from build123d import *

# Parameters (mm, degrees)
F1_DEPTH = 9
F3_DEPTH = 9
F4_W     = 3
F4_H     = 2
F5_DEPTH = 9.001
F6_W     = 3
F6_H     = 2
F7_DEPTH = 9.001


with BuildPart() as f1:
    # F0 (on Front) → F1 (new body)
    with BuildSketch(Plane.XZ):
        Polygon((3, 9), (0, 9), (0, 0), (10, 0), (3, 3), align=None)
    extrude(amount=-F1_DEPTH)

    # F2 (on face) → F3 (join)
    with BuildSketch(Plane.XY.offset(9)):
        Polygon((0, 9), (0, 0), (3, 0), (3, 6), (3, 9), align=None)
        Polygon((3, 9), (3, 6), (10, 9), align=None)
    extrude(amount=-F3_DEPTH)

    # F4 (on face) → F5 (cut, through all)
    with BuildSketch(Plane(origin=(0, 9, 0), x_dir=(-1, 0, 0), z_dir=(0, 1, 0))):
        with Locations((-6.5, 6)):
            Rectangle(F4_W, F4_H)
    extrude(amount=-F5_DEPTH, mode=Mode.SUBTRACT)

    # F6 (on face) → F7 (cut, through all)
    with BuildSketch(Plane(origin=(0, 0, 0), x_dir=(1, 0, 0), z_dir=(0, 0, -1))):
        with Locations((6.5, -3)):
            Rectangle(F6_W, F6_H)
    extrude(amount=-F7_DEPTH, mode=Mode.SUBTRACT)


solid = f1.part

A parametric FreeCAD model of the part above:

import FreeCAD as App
import Part
import Sketcher

V = App.Vector
Q = App.Units.Quantity

doc = App.newDocument("Part")
body = doc.addObject("PartDesign::Body", "Body")

# Sketch on XZ plane
sketch1 = body.newObject("Sketcher::SketchObject", "Sketch")
sketch1.AttachmentSupport = (doc.getObject("XZ_Plane"), [""])
sketch1.MapMode = "FlatFace"
sketch1.addGeometry(Part.LineSegment(V(3, 9, 0), V(0, 9, 0)), False)
sketch1.addGeometry(Part.LineSegment(V(0, 9, 0), V(0, 0, 0)), False)
sketch1.addGeometry(Part.LineSegment(V(0, 0, 0), V(10, 0, 0)), False)
sketch1.addGeometry(Part.LineSegment(V(10, 0, 0), V(3, 3, 0)), False)
sketch1.addGeometry(Part.LineSegment(V(3, 3, 0), V(3, 9, 0)), False)
sketch1.addConstraint(Sketcher.Constraint("Coincident", 0, 2, 1, 1))
sketch1.addConstraint(Sketcher.Constraint("Coincident", 1, 2, 2, 1))
sketch1.addConstraint(Sketcher.Constraint("Coincident", 2, 2, 3, 1))
sketch1.addConstraint(Sketcher.Constraint("Coincident", 3, 2, 4, 1))
sketch1.addConstraint(Sketcher.Constraint("Coincident", 4, 2, 0, 1))
sketch1.addConstraint(Sketcher.Constraint("Horizontal", 0))
sketch1.addConstraint(Sketcher.Constraint("Vertical", 1))
sketch1.addConstraint(Sketcher.Constraint("Horizontal", 2))
sketch1.addConstraint(Sketcher.Constraint("Vertical", 4))
sketch1.addConstraint(Sketcher.Constraint("Coincident", 1, 2, -1, 1))
sketch1.addConstraint(Sketcher.Constraint("DistanceX", 0, 2, 0, 1, Q("3 mm")))
sketch1.addConstraint(Sketcher.Constraint("DistanceX", 2, 1, 2, 2, Q("10 mm")))
sketch1.addConstraint(Sketcher.Constraint("DistanceY", 1, 2, 1, 1, Q("9 mm")))
sketch1.addConstraint(Sketcher.Constraint("DistanceY", 4, 1, 4, 2, Q("6 mm")))
pad1 = body.newObject("PartDesign::Pad", "Pad")
pad1.Profile = sketch1
pad1.Length = 9
pad1.Reversed = True

# Sketch on XY plane
sketch2 = body.newObject("Sketcher::SketchObject", "Sketch001")
sketch2.AttachmentSupport = (doc.getObject("XY_Plane"), [""])
sketch2.MapMode = "FlatFace"
sketch2.AttachmentOffset = App.Placement(V(0, 0, 9), App.Rotation())
sketch2.addGeometry(Part.LineSegment(V(0, 9, 0), V(0, 0, 0)), False)
sketch2.addGeometry(Part.LineSegment(V(0, 0, 0), V(3, 0, 0)), False)
sketch2.addGeometry(Part.LineSegment(V(3, 0, 0), V(3, 6, 0)), False)
sketch2.addGeometry(Part.LineSegment(V(3, 6, 0), V(10, 9, 0)), False)
sketch2.addGeometry(Part.LineSegment(V(10, 9, 0), V(0, 9, 0)), False)
sketch2.addConstraint(Sketcher.Constraint("Coincident", 0, 2, 1, 1))
sketch2.addConstraint(Sketcher.Constraint("Coincident", 1, 2, 2, 1))
sketch2.addConstraint(Sketcher.Constraint("Coincident", 2, 2, 3, 1))
sketch2.addConstraint(Sketcher.Constraint("Coincident", 3, 2, 4, 1))
sketch2.addConstraint(Sketcher.Constraint("Coincident", 4, 2, 0, 1))
sketch2.addConstraint(Sketcher.Constraint("Vertical", 0))
sketch2.addConstraint(Sketcher.Constraint("Horizontal", 1))
sketch2.addConstraint(Sketcher.Constraint("Vertical", 2))
sketch2.addConstraint(Sketcher.Constraint("Horizontal", 4))
sketch2.addConstraint(Sketcher.Constraint("Coincident", 0, 2, -1, 1))
sketch2.addConstraint(Sketcher.Constraint("DistanceX", 1, 1, 1, 2, Q("3 mm")))
sketch2.addConstraint(Sketcher.Constraint("DistanceX", 4, 2, 4, 1, Q("10 mm")))
sketch2.addConstraint(Sketcher.Constraint("DistanceY", 0, 2, 0, 1, Q("9 mm")))
sketch2.addConstraint(Sketcher.Constraint("DistanceY", 2, 1, 2, 2, Q("6 mm")))
pad2 = body.newObject("PartDesign::Pad", "Pad001")
pad2.Profile = sketch2
pad2.Length = 9
pad2.Reversed = True

# Sketch on XZ plane
sketch3 = body.newObject("Sketcher::SketchObject", "Sketch002")
sketch3.AttachmentSupport = (doc.getObject("XZ_Plane"), [""])
sketch3.MapMode = "FlatFace"
sketch3.AttachmentOffset = App.Placement(V(0, 0, -9), App.Rotation())
sketch3.addGeometry(Part.LineSegment(V(8, 7, 0), V(8, 5, 0)), False)
sketch3.addGeometry(Part.LineSegment(V(8, 5, 0), V(5, 5, 0)), False)
sketch3.addGeometry(Part.LineSegment(V(5, 5, 0), V(5, 7, 0)), False)
sketch3.addGeometry(Part.LineSegment(V(5, 7, 0), V(8, 7, 0)), False)
sketch3.addConstraint(Sketcher.Constraint("Coincident", 0, 2, 1, 1))
sketch3.addConstraint(Sketcher.Constraint("Coincident", 1, 2, 2, 1))
sketch3.addConstraint(Sketcher.Constraint("Coincident", 2, 2, 3, 1))
sketch3.addConstraint(Sketcher.Constraint("Coincident", 3, 2, 0, 1))
sketch3.addConstraint(Sketcher.Constraint("Vertical", 0))
sketch3.addConstraint(Sketcher.Constraint("Horizontal", 1))
sketch3.addConstraint(Sketcher.Constraint("Vertical", 2))
sketch3.addConstraint(Sketcher.Constraint("Horizontal", 3))
sketch3.addConstraint(Sketcher.Constraint("DistanceX", 1, 2, 1, 1, Q("3 mm")))
sketch3.addConstraint(Sketcher.Constraint("DistanceY", 0, 2, 0, 1, Q("2 mm")))
sketch3.addConstraint(Sketcher.Constraint("DistanceX", -1, 1, 0, 2, Q("8 mm")))
sketch3.addConstraint(Sketcher.Constraint("DistanceY", -1, 1, 0, 2, Q("5 mm")))
pocket1 = body.newObject("PartDesign::Pocket", "Pocket")
pocket1.Profile = sketch3
pocket1.Type = "ThroughAll"
pocket1.Reversed = True

# Sketch on XY plane
sketch4 = body.newObject("Sketcher::SketchObject", "Sketch003")
sketch4.AttachmentSupport = (doc.getObject("XY_Plane"), [""])
sketch4.MapMode = "FlatFace"
sketch4.addGeometry(Part.LineSegment(V(5, 2, 0), V(5, 4, 0)), False)
sketch4.addGeometry(Part.LineSegment(V(5, 4, 0), V(8, 4, 0)), False)
sketch4.addGeometry(Part.LineSegment(V(8, 4, 0), V(8, 2, 0)), False)
sketch4.addGeometry(Part.LineSegment(V(8, 2, 0), V(5, 2, 0)), False)
sketch4.addConstraint(Sketcher.Constraint("Coincident", 0, 2, 1, 1))
sketch4.addConstraint(Sketcher.Constraint("Coincident", 1, 2, 2, 1))
sketch4.addConstraint(Sketcher.Constraint("Coincident", 2, 2, 3, 1))
sketch4.addConstraint(Sketcher.Constraint("Coincident", 3, 2, 0, 1))
sketch4.addConstraint(Sketcher.Constraint("Vertical", 0))
sketch4.addConstraint(Sketcher.Constraint("Horizontal", 1))
sketch4.addConstraint(Sketcher.Constraint("Vertical", 2))
sketch4.addConstraint(Sketcher.Constraint("Horizontal", 3))
sketch4.addConstraint(Sketcher.Constraint("DistanceX", 1, 1, 1, 2, Q("3 mm")))
sketch4.addConstraint(Sketcher.Constraint("DistanceY", 0, 1, 0, 2, Q("2 mm")))
sketch4.addConstraint(Sketcher.Constraint("DistanceX", -1, 1, 0, 2, Q("5 mm")))
sketch4.addConstraint(Sketcher.Constraint("DistanceY", -1, 1, 0, 2, Q("4 mm")))
pocket2 = body.newObject("PartDesign::Pocket", "Pocket001")
pocket2.Profile = sketch4
pocket2.Type = "ThroughAll"
pocket2.Reversed = True

doc.recompute()
